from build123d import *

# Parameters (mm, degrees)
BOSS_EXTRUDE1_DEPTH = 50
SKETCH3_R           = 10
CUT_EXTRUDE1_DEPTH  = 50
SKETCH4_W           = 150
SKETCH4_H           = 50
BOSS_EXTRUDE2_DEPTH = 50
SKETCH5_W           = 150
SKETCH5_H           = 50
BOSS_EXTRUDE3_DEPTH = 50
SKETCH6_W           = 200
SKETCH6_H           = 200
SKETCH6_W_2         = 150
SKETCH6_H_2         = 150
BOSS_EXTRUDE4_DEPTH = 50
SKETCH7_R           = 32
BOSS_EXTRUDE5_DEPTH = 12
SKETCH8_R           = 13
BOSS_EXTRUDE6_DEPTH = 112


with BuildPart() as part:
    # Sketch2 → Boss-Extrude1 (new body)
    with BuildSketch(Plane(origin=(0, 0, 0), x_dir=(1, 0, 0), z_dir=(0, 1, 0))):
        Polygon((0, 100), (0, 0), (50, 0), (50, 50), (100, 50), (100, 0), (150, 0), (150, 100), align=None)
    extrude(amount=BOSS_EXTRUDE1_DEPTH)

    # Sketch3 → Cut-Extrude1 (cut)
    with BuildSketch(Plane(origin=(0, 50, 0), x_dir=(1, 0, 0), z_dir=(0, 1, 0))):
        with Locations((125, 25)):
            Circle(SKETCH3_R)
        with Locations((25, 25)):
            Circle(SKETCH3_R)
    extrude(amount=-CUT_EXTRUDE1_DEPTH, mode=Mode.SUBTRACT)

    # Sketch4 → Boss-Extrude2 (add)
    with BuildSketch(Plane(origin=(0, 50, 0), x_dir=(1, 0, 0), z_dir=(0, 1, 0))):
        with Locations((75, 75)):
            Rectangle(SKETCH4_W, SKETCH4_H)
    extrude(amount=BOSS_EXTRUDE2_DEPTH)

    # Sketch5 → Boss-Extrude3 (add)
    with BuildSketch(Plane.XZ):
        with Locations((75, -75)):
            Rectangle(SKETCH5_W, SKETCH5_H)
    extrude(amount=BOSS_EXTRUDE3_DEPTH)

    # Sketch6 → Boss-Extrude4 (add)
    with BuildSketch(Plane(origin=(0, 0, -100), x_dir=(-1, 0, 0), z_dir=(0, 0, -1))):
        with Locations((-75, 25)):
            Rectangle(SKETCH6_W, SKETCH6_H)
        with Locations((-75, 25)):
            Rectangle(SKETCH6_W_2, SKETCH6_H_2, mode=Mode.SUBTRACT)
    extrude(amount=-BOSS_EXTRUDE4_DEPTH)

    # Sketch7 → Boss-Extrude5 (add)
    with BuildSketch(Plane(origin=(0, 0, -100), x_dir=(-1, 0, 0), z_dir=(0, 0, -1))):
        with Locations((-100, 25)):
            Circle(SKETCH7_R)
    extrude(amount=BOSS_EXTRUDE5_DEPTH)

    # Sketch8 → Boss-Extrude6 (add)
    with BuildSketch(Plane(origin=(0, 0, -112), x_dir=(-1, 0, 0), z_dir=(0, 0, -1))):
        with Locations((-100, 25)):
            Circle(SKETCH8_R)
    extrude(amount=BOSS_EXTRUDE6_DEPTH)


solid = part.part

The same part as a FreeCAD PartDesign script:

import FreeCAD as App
import Part
import Sketcher

V = App.Vector

doc = App.newDocument("Part")
params = doc.addObject("Spreadsheet::Sheet", "Params")
for row, (alias, value) in enumerate([
    ("sketch1_width", "50 mm"),
    ("sketch1_height", "100 mm"),
    ("pad1_length", "50 mm"),
    ("sketch2_diameter", "20 mm"),
    ("pocket1_length", "50 mm"),
    ("sketch3_width", "150 mm"),
    ("sketch3_height", "50 mm"),
    ("pad2_length", "50 mm"),
    ("sketch4_width", "150 mm"),
    ("sketch4_height", "50 mm"),
    ("pad3_length", "50 mm"),
    ("sketch5_width", "200 mm"),
    ("sketch5_width2", "150 mm"),
    ("pad4_length", "50 mm"),
    ("sketch6_diameter", "64 mm"),
    ("pad5_length", "12 mm"),
    ("sketch7_diameter", "26 mm"),
    ("pad6_length", "112 mm"),
], start=1):
    params.set(f"A{row}", alias)
    params.set(f"B{row}", "=" + value)
    params.setAlias(f"B{row}", alias)

body = doc.addObject("PartDesign::Body", "Body")

sketch1 = body.newObject("Sketcher::SketchObject", "Sketch")
sketch1.AttachmentSupport = (doc.getObject("XZ_Plane"), [""])
sketch1.MapMode = "FlatFace"
sketch1.addGeometry(Part.LineSegment(V(0, -100, 0), V(0, 0, 0)), False)
sketch1.addGeometry(Part.LineSegment(V(0, 0, 0), V(50, 0, 0)), False)
sketch1.addGeometry(Part.LineSegment(V(50, 0, 0), V(50, -50, 0)), False)
sketch1.addGeometry(Part.LineSegment(V(50, -50, 0), V(100, -50, 0)), False)
sketch1.addGeometry(Part.LineSegment(V(100, -50, 0), V(100, 0, 0)), False)
sketch1.addGeometry(Part.LineSegment(V(100, 0, 0), V(150, 0, 0)), False)
sketch1.addGeometry(Part.LineSegment(V(150, 0, 0), V(150, -100, 0)), False)
sketch1.addGeometry(Part.LineSegment(V(150, -100, 0), V(0, -100, 0)), False)
sketch1.addConstraint(Sketcher.Constraint("Coincident", 0, 2, 1, 1))
sketch1.addConstraint(Sketcher.Constraint("Coincident", 1, 2, 2, 1))
sketch1.addConstraint(Sketcher.Constraint("Coincident", 2, 2, 3, 1))
sketch1.addConstraint(Sketcher.Constraint("Coincident", 3, 2, 4, 1))
sketch1.addConstraint(Sketcher.Constraint("Coincident", 4, 2, 5, 1))
sketch1.addConstraint(Sketcher.Constraint("Coincident", 5, 2, 6, 1))
sketch1.addConstraint(Sketcher.Constraint("Coincident", 6, 2, 7, 1))
sketch1.addConstraint(Sketcher.Constraint("Coincident", 7, 2, 0, 1))
sketch1.addConstraint(Sketcher.Constraint("Vertical", 0))
sketch1.addConstraint(Sketcher.Constraint("Horizontal", 1))
sketch1.addConstraint(Sketcher.Constraint("Vertical", 2))
sketch1.addConstraint(Sketcher.Constraint("Horizontal", 3))
sketch1.addConstraint(Sketcher.Constraint("Vertical", 4))
sketch1.addConstraint(Sketcher.Constraint("Horizontal", 5))
sketch1.addConstraint(Sketcher.Constraint("Vertical", 6))
sketch1.addConstraint(Sketcher.Constraint("Horizontal", 7))
sketch1.addConstraint(Sketcher.Constraint("Coincident", 0, 2, -1, 1))
sketch1.addConstraint(Sketcher.Constraint("PointOnObject", 4, 2, -1))
sketch1.addConstraint(Sketcher.Constraint("Equal", 1, 3))
sketch1.addConstraint(Sketcher.Constraint("Equal", 3, 5))
sketch1.addConstraint(Sketcher.Constraint("Equal", 5, 2))
sketch1.addConstraint(Sketcher.Constraint("DistanceX", 1, 1, 1, 2, 50.0))
sketch1.addConstraint(Sketcher.Constraint("DistanceY", 0, 1, 0, 2, 100.0))
sketch1.setExpression("Constraints[21]", "Params.sketch1_width")
sketch1.setExpression("Constraints[22]", "Params.sketch1_height")
pad1 = body.newObject("PartDesign::Pad", "Pad")
pad1.Profile = sketch1
pad1.setExpression("Length", "Params.pad1_length")
pad1.Reversed = True

sketch2 = body.newObject("Sketcher::SketchObject", "Sketch001")
sketch2.AttachmentSupport = (doc.getObject("XZ_Plane"), [""])
sketch2.MapMode = "FlatFace"
sketch2.AttachmentOffset = App.Placement(V(0, 0, -50), App.Rotation())
sketch2.addGeometry(Part.Circle(V(125, -25, 0), V(0, 0, 1), 10), False)
sketch2.addGeometry(Part.Circle(V(25, -25, 0), V(0, 0, 1), 10), False)
sketch2.addConstraint(Sketcher.Constraint("Equal", 0, 1))
sketch2.addConstraint(Sketcher.Constraint("Horizontal", 0, 3, 1, 3))
sketch2.addConstraint(Sketcher.Constraint("Diameter", 0, 20.0))
sketch2.addConstraint(Sketcher.Constraint("DistanceX", -1, 1, 0, 3, 125.0))
sketch2.addConstraint(Sketcher.Constraint("DistanceY", 0, 3, -1, 1, 25.0))
sketch2.addConstraint(Sketcher.Constraint("DistanceX", -1, 1, 1, 3, 25.0))
sketch2.setExpression("Constraints[2]", "Params.sketch2_diameter")
pocket1 = body.newObject("PartDesign::Pocket", "Pocket")
pocket1.Profile = sketch2
pocket1.setExpression("Length", "Params.pocket1_length")
pocket1.Reversed = True

sketch3 = body.newObject("Sketcher::SketchObject", "Sketch002")
sketch3.AttachmentSupport = (doc.getObject("XZ_Plane"), [""])
sketch3.MapMode = "FlatFace"
sketch3.AttachmentOffset = App.Placement(V(0, 0, -50), App.Rotation())
sketch3.addGeometry(Part.LineSegment(V(0, -100, 0), V(0, -50, 0)), False)
sketch3.addGeometry(Part.LineSegment(V(0, -50, 0), V(150, -50, 0)), False)
sketch3.addGeometry(Part.LineSegment(V(150, -50, 0), V(150, -100, 0)), False)
sketch3.addGeometry(Part.LineSegment(V(150, -100, 0), V(0, -100, 0)), False)
sketch3.addConstraint(Sketcher.Constraint("Coincident", 0, 2, 1, 1))
sketch3.addConstraint(Sketcher.Constraint("Coincident", 1, 2, 2, 1))
sketch3.addConstraint(Sketcher.Constraint("Coincident", 2, 2, 3, 1))
sketch3.addConstraint(Sketcher.Constraint("Coincident", 3, 2, 0, 1))
sketch3.addConstraint(Sketcher.Constraint("Vertical", 0))
sketch3.addConstraint(Sketcher.Constraint("Horizontal", 1))
sketch3.addConstraint(Sketcher.Constraint("Vertical", 2))
sketch3.addConstraint(Sketcher.Constraint("Horizontal", 3))
sketch3.addConstraint(Sketcher.Constraint("PointOnObject", 0, 2, -2))
sketch3.addConstraint(Sketcher.Constraint("DistanceX", 1, 1, 1, 2, 150.0))
sketch3.addConstraint(Sketcher.Constraint("DistanceY", 0, 1, 0, 2, 50.0))
sketch3.addConstraint(Sketcher.Constraint("DistanceY", 0, 2, -1, 1, 50.0))
sketch3.setExpression("Constraints[9]", "Params.sketch3_width")
sketch3.setExpression("Constraints[10]", "Params.sketch3_height")
pad2 = body.newObject("PartDesign::Pad", "Pad001")
pad2.Profile = sketch3
pad2.setExpression("Length", "Params.pad2_length")
pad2.Reversed = True

sketch4 = body.newObject("Sketcher::SketchObject", "Sketch003")
sketch4.AttachmentSupport = (doc.getObject("XZ_Plane"), [""])
sketch4.MapMode = "FlatFace"
sketch4.addGeometry(Part.LineSegment(V(0, -50, 0), V(0, -100, 0)), False)
sketch4.addGeometry(Part.LineSegment(V(0, -100, 0), V(150, -100, 0)), False)
sketch4.addGeometry(Part.LineSegment(V(150, -100, 0), V(150, -50, 0)), False)
sketch4.addGeometry(Part.LineSegment(V(150, -50, 0), V(0, -50, 0)), False)
sketch4.addConstraint(Sketcher.Constraint("Coincident", 0, 2, 1, 1))
sketch4.addConstraint(Sketcher.Constraint("Coincident", 1, 2, 2, 1))
sketch4.addConstraint(Sketcher.Constraint("Coincident", 2, 2, 3, 1))
sketch4.addConstraint(Sketcher.Constraint("Coincident", 3, 2, 0, 1))
sketch4.addConstraint(Sketcher.Constraint("Vertical", 0))
sketch4.addConstraint(Sketcher.Constraint("Horizontal", 1))
sketch4.addConstraint(Sketcher.Constraint("Vertical", 2))
sketch4.addConstraint(Sketcher.Constraint("Horizontal", 3))
sketch4.addConstraint(Sketcher.Constraint("PointOnObject", 0, 2, -2))
sketch4.addConstraint(Sketcher.Constraint("DistanceX", 1, 1, 1, 2, 150.0))
sketch4.addConstraint(Sketcher.Constraint("DistanceY", 0, 2, 0, 1, 50.0))
sketch4.addConstraint(Sketcher.Constraint("DistanceY", 0, 2, -1, 1, 100.0))
sketch4.setExpression("Constraints[9]", "Params.sketch4_width")
sketch4.setExpression("Constraints[10]", "Params.sketch4_height")
pad3 = body.newObject("PartDesign::Pad", "Pad002")
pad3.Profile = sketch4
pad3.setExpression("Length", "Params.pad3_length")

sketch5 = body.newObject("Sketcher::SketchObject", "Sketch004")
sketch5.AttachmentSupport = (doc.getObject("XY_Plane"), [""])
sketch5.MapMode = "FlatFace"
sketch5.AttachmentOffset = App.Placement(V(0, 0, -100), App.Rotation())
sketch5.addGeometry(Part.LineSegment(V(175, 125, 0), V(175, -75, 0)), False)
sketch5.addGeometry(Part.LineSegment(V(175, -75, 0), V(-25, -75, 0)), False)
sketch5.addGeometry(Part.LineSegment(V(-25, -75, 0), V(-25, 125, 0)), False)
sketch5.addGeometry(Part.LineSegment(V(-25, 125, 0), V(175, 125, 0)), False)
sketch5.addGeometry(Part.LineSegment(V(0, -50, 0), V(150, -50, 0)), False)
sketch5.addGeometry(Part.LineSegment(V(150, -50, 0), V(150, 100, 0)), False)
sketch5.addGeometry(Part.LineSegment(V(150, 100, 0), V(0, 100, 0)), False)
sketch5.addGeometry(Part.LineSegment(V(0, 100, 0), V(0, -50, 0)), False)
sketch5.addConstraint(Sketcher.Constraint("Coincident", 0, 2, 1, 1))
sketch5.addConstraint(Sketcher.Constraint("Coincident", 1, 2, 2, 1))
sketch5.addConstraint(Sketcher.Constraint("Coincident", 2, 2, 3, 1))
sketch5.addConstraint(Sketcher.Constraint("Coincident", 3, 2, 0, 1))
sketch5.addConstraint(Sketcher.Constraint("Coincident", 4, 2, 5, 1))
sketch5.addConstraint(Sketcher.Constraint("Coincident", 5, 2, 6, 1))
sketch5.addConstraint(Sketcher.Constraint("Coincident", 6, 2, 7, 1))
sketch5.addConstraint(Sketcher.Constraint("Coincident", 7, 2, 4, 1))
sketch5.addConstraint(Sketcher.Constraint("Vertical", 0))
sketch5.addConstraint(Sketcher.Constraint("Horizontal", 1))
sketch5.addConstraint(Sketcher.Constraint("Vertical", 2))
sketch5.addConstraint(Sketcher.Constraint("Horizontal", 3))
sketch5.addConstraint(Sketcher.Constraint("Horizontal", 4))
sketch5.addConstraint(Sketcher.Constraint("Vertical", 5))
sketch5.addConstraint(Sketcher.Constraint("Horizontal", 6))
sketch5.addConstraint(Sketcher.Constraint("Vertical", 7))
sketch5.addConstraint(Sketcher.Constraint("PointOnObject", 6, 2, -2))
sketch5.addConstraint(Sketcher.Constraint("Equal", 3, 0))
sketch5.addConstraint(Sketcher.Constraint("Equal", 6, 5))
sketch5.addConstraint(Sketcher.Constraint("DistanceX", 1, 2, 1, 1, 200.0))
sketch5.addConstraint(Sketcher.Constraint("DistanceX", 4, 1, 4, 2, 150.0))
sketch5.addConstraint(Sketcher.Constraint("DistanceX", -1, 1, 0, 2, 175.0))
sketch5.addConstraint(Sketcher.Constraint("DistanceY", 0, 2, -1, 1, 75.0))
sketch5.addConstraint(Sketcher.Constraint("DistanceY", 4, 2, -1, 1, 50.0))
sketch5.setExpression("Constraints[19]", "Params.sketch5_width")
sketch5.setExpression("Constraints[20]", "Params.sketch5_width2")
pad4 = body.newObject("PartDesign::Pad", "Pad003")
pad4.Profile = sketch5
pad4.setExpression("Length", "Params.pad4_length")

sketch6 = body.newObject("Sketcher::SketchObject", "Sketch005")
sketch6.AttachmentSupport = (doc.getObject("XY_Plane"), [""])
sketch6.MapMode = "FlatFace"
sketch6.AttachmentOffset = App.Placement(V(0, 0, -100), App.Rotation())
sketch6.addGeometry(Part.Circle(V(100, 25, 0), V(0, 0, 1), 32), False)
sketch6.addConstraint(Sketcher.Constraint("Diameter", 0, 64.0))
sketch6.addConstraint(Sketcher.Constraint("DistanceX", -1, 1, 0, 3, 100.0))
sketch6.addConstraint(Sketcher.Constraint("DistanceY", -1, 1, 0, 3, 25.0))
sketch6.setExpression("Constraints[0]", "Params.sketch6_diameter")
pad5 = body.newObject("PartDesign::Pad", "Pad004")
pad5.Profile = sketch6
pad5.setExpression("Length", "Params.pad5_length")
pad5.Reversed = True

sketch7 = body.newObject("Sketcher::SketchObject", "Sketch006")
sketch7.AttachmentSupport = (doc.getObject("XY_Plane"), [""])
sketch7.MapMode = "FlatFace"
sketch7.AttachmentOffset = App.Placement(V(0, 0, -112), App.Rotation())
sketch7.addGeometry(Part.Circle(V(100, 25, 0), V(0, 0, 1), 13), False)
sketch7.addConstraint(Sketcher.Constraint("Diameter", 0, 26.0))
sketch7.addConstraint(Sketcher.Constraint("DistanceX", -1, 1, 0, 3, 100.0))
sketch7.addConstraint(Sketcher.Constraint("DistanceY", -1, 1, 0, 3, 25.0))
sketch7.setExpression("Constraints[0]", "Params.sketch7_diameter")
pad6 = body.newObject("PartDesign::Pad", "Pad005")
pad6.Profile = sketch7
pad6.setExpression("Length", "Params.pad6_length")
pad6.Reversed = True

doc.recompute()
